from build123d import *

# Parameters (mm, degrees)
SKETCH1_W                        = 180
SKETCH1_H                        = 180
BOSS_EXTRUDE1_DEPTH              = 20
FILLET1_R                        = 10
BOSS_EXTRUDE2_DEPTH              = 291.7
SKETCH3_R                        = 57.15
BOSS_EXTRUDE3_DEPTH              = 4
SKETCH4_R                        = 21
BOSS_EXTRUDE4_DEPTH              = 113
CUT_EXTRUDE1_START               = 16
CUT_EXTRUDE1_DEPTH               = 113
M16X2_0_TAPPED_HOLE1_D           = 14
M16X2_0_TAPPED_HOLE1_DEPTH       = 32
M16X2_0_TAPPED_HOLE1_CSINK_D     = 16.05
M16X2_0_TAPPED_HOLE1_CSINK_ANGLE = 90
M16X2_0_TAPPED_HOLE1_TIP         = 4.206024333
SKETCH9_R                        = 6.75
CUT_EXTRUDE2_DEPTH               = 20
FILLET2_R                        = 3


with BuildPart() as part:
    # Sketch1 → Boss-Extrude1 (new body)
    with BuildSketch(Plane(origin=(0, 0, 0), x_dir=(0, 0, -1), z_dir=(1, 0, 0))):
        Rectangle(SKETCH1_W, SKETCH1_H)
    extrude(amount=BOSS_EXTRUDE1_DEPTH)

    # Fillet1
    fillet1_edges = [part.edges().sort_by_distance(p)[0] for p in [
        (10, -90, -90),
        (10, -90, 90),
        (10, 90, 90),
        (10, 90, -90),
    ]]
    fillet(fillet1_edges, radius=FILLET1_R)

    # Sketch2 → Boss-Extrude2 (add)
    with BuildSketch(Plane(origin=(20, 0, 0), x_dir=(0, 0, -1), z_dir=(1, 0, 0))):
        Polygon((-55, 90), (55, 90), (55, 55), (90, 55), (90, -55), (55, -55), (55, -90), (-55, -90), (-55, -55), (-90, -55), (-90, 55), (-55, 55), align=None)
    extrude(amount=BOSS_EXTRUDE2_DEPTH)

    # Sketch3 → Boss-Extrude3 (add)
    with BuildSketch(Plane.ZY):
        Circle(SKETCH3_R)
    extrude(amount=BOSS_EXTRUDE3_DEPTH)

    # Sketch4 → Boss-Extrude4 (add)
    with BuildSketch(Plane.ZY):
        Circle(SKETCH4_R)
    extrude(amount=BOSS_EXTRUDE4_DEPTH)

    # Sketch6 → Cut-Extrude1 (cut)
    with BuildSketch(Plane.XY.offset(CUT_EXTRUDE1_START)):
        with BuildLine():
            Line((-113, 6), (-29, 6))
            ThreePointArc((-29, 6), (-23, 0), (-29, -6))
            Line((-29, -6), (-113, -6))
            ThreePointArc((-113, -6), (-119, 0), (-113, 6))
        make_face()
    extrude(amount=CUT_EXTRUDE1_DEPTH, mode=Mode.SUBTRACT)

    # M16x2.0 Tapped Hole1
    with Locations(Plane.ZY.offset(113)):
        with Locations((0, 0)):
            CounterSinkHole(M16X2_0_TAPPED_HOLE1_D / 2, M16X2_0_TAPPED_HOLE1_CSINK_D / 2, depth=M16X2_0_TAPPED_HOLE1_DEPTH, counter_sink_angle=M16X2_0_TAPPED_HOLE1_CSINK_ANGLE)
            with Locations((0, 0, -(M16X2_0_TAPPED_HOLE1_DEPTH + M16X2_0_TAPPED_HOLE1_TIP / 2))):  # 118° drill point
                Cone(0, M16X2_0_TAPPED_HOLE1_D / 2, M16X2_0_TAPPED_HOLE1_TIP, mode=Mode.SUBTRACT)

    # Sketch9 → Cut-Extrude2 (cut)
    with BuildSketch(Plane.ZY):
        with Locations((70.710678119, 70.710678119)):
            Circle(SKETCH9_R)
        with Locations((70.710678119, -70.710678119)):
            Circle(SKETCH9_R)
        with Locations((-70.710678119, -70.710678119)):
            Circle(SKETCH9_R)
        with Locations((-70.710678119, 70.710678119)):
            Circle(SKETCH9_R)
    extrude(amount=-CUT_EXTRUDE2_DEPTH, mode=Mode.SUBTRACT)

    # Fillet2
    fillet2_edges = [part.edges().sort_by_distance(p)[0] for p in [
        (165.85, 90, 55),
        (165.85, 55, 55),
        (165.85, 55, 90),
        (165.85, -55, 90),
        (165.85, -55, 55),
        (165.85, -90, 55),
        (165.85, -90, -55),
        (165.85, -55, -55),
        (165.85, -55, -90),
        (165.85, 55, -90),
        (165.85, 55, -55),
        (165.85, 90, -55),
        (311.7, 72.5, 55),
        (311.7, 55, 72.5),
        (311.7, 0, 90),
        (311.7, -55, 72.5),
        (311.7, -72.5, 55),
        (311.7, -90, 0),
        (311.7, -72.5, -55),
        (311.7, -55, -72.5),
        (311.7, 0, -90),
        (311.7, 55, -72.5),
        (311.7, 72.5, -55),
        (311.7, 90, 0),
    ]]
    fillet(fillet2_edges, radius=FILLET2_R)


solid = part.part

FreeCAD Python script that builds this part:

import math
import FreeCAD as App
import Part
import Sketcher

V = App.Vector


def edges_at(feature, points):
    """Names of the edges that pass closest to the given points."""
    edges = feature.Shape.Edges
    near = lambda p: min(range(len(edges)), key=lambda i: edges[i].distToShape(Part.Vertex(*p))[0])
    return sorted({f"Edge{near(p) + 1}" for p in points})


def add_polygon(sketch, points):
    """Adds a closed chain of lines whose ends are joined by coincident constraints."""
    first, n = sketch.GeometryCount, len(points)
    for a, b in zip(points, points[1:] + points[:1]):
        sketch.addGeometry(Part.LineSegment(App.Vector(*a, 0), App.Vector(*b, 0)), False)
    for i in range(n):
        sketch.addConstraint(Sketcher.Constraint("Coincident", first + i, 2, first + (i + 1) % n, 1))

doc = App.newDocument("Part")
params = doc.addObject("Spreadsheet::Sheet", "Params")
for row, (alias, value) in enumerate([
    ("sketch1_width", "180 mm"),
    ("pad1_length", "20 mm"),
    ("fillet_radius", "10 mm"),
    ("sketch2_width", "35 mm"),
    ("sketch2_width2", "110 mm"),
    ("pad2_length", "291.7 mm"),
    ("sketch3_diameter", "114.3 mm"),
    ("pad3_length", "4 mm"),
    ("sketch4_diameter", "42 mm"),
    ("pad4_length", "113 mm"),
    ("sketch5_radius", "6 mm"),
    ("sketch5_width", "84 mm"),
    ("pocket1_length", "113 mm"),
    ("sketch6_diameter", "14 mm"),
    ("hole_diameter", "14 mm"),
    ("hole_depth", "32 mm"),
    ("hole_csink_diameter", "16.05 mm"),
    ("sketch7_diameter", "13.5 mm"),
    ("pocket2_length", "20 mm"),
    ("fillet2_radius", "3 mm"),
], start=1):
    params.set(f"A{row}", alias)
    params.set(f"B{row}", "=" + value)
    params.setAlias(f"B{row}", alias)

body = doc.addObject("PartDesign::Body", "Body")

# Sketch on YZ plane
sketch1 = doc.addObject("Sketcher::SketchObject", "Sketch")
body.addObject(sketch1)
sketch1.AttachmentSupport = (doc.YZ_Plane, [""])
sketch1.MapMode = "FlatFace"
add_polygon(sketch1, [(90, 90), (-90, 90), (-90, -90), (90, -90)])  # lines 0-3
sketch1.addConstraint([
    Sketcher.Constraint("Horizontal", 0),
    Sketcher.Constraint("Vertical", 1),
    Sketcher.Constraint("Horizontal", 2),
    Sketcher.Constraint("Vertical", 3),
    Sketcher.Constraint("Symmetric", 0, 2, 2, 2, -1, 1),
    Sketcher.Constraint("Equal", 2, 1),
    Sketcher.Constraint("DistanceX", 0, 2, 0, 1, 180.0),
])
sketch1.setExpression("Constraints[10]", "Params.sketch1_width")
pad1 = doc.addObject("PartDesign::Pad", "Pad")
body.addObject(pad1)
pad1.Profile = sketch1
pad1.setExpression("Length", "Params.pad1_length")
doc.recompute()

fillet = doc.addObject("PartDesign::Fillet", "Fillet")
body.addObject(fillet)
fillet.Base = (pad1, edges_at(pad1, [
    (10, -90, -90),
    (10, -90, 90),
    (10, 90, 90),
    (10, 90, -90),
]))
fillet.setExpression("Radius", "Params.fillet_radius")

# Sketch on YZ plane
sketch2 = doc.addObject("Sketcher::SketchObject", "Sketch001")
body.addObject(sketch2)
sketch2.AttachmentSupport = (doc.YZ_Plane, [""])
sketch2.MapMode = "FlatFace"
sketch2.AttachmentOffset = App.Placement(V(0, 0, 20), App.Rotation())
add_polygon(sketch2, [(90, -55), (90, 55), (55, 55), (55, 90), (-55, 90), (-55, 55), (-90, 55), (-90, -55), (-55, -55), (-55, -90), (55, -90), (55, -55)])  # lines 0-11
sketch2.addConstraint([
    Sketcher.Constraint("Vertical", 0),
    Sketcher.Constraint("Horizontal", 1),
    Sketcher.Constraint("Vertical", 2),
    Sketcher.Constraint("Horizontal", 3),
    Sketcher.Constraint("Vertical", 4),
    Sketcher.Constraint("Horizontal", 5),
    Sketcher.Constraint("Vertical", 6),
    Sketcher.Constraint("Horizontal", 7),
    Sketcher.Constraint("Vertical", 8),
    Sketcher.Constraint("Horizontal", 9),
    Sketcher.Constraint("Vertical", 10),
    Sketcher.Constraint("Horizontal", 11),
    Sketcher.Constraint("Symmetric", 0, 2, 6, 2, -1, 1),
    Sketcher.Constraint("Symmetric", 2, 2, 8, 2, -1, 1),
    Sketcher.Constraint("Symmetric", 4, 2, 10, 2, -1, 1),
    Sketcher.Constraint("Symmetric", 1, 2, 4, 2, -2),
    Sketcher.Constraint("Equal", 9, 0),
    Sketcher.Constraint("Equal", 11, 2),
    Sketcher.Constraint("DistanceX", 1, 2, 1, 1, 35.0),
    Sketcher.Constraint("DistanceX", 3, 2, 3, 1, 110.0),
])
sketch2.setExpression("Constraints[30]", "Params.sketch2_width")
sketch2.setExpression("Constraints[31]", "Params.sketch2_width2")
pad2 = doc.addObject("PartDesign::Pad", "Pad001")
body.addObject(pad2)
pad2.Profile = sketch2
pad2.setExpression("Length", "Params.pad2_length")

# Sketch on YZ plane
sketch3 = doc.addObject("Sketcher::SketchObject", "Sketch002")
body.addObject(sketch3)
sketch3.AttachmentSupport = (doc.YZ_Plane, [""])
sketch3.MapMode = "FlatFace"
sketch3.addGeometry(Part.Circle(V(0, 0, 0), V(0, 0, 1), 57.15), False)
sketch3.addConstraint([
    Sketcher.Constraint("Coincident", 0, 3, -1, 1),
    Sketcher.Constraint("Diameter", 0, 114.3),
])
sketch3.setExpression("Constraints[1]", "Params.sketch3_diameter")
pad3 = doc.addObject("PartDesign::Pad", "Pad002")
body.addObject(pad3)
pad3.Profile = sketch3
pad3.setExpression("Length", "Params.pad3_length")
pad3.Reversed = True

# Sketch on YZ plane
sketch4 = doc.addObject("Sketcher::SketchObject", "Sketch003")
body.addObject(sketch4)
sketch4.AttachmentSupport = (doc.YZ_Plane, [""])
sketch4.MapMode = "FlatFace"
sketch4.addGeometry(Part.Circle(V(0, 0, 0), V(0, 0, 1), 21), False)
sketch4.addConstraint([
    Sketcher.Constraint("Coincident", 0, 3, -1, 1),
    Sketcher.Constraint("Diameter", 0, 42.0),
])
sketch4.setExpression("Constraints[1]", "Params.sketch4_diameter")
pad4 = doc.addObject("PartDesign::Pad", "Pad003")
body.addObject(pad4)
pad4.Profile = sketch4
pad4.setExpression("Length", "Params.pad4_length")
pad4.Reversed = True

# Sketch on XY plane
sketch5 = doc.addObject("Sketcher::SketchObject", "Sketch004")
body.addObject(sketch5)
sketch5.AttachmentSupport = (doc.XY_Plane, [""])
sketch5.MapMode = "FlatFace"
sketch5.AttachmentOffset = App.Placement(V(0, 0, 16), App.Rotation())
sketch5.addGeometry([
    Part.LineSegment(V(-29, 6, 0), V(-113, 6, 0)),
    Part.ArcOfCircle(Part.Circle(V(-113, 0, 0), V(0, 0, 1), 6), math.radians(90), math.radians(270)),
    Part.LineSegment(V(-113, -6, 0), V(-29, -6, 0)),
    Part.ArcOfCircle(Part.Circle(V(-29, 0, 0), V(0, 0, 1), 6), math.radians(-90), math.radians(90)),
], False)
sketch5.addConstraint([
    Sketcher.Constraint("Tangent", 0, 2, 1, 1),
    Sketcher.Constraint("Tangent", 1, 2, 2, 1),
    Sketcher.Constraint("Tangent", 2, 2, 3, 1),
    Sketcher.Constraint("Tangent", 3, 2, 0, 1),
    Sketcher.Constraint("Horizontal", 0),
    Sketcher.Constraint("Horizontal", 2),
    Sketcher.Constraint("PointOnObject", 1, 3, -1),
    Sketcher.Constraint("Radius", 1, 6.0),
    Sketcher.Constraint("DistanceX", 0, 2, 0, 1, 84.0),
    Sketcher.Constraint("DistanceX", 1, 3, -1, 1, 113.0),
])
sketch5.setExpression("Constraints[7]", "Params.sketch5_radius")
sketch5.setExpression("Constraints[8]", "Params.sketch5_width")
pocket1 = doc.addObject("PartDesign::Pocket", "Pocket")
body.addObject(pocket1)
pocket1.Profile = sketch5
pocket1.setExpression("Length", "Params.pocket1_length")
pocket1.Reversed = True

# Sketch on YZ plane
sketch6 = doc.addObject("Sketcher::SketchObject", "Sketch005")
body.addObject(sketch6)
sketch6.AttachmentSupport = (doc.YZ_Plane, [""])
sketch6.MapMode = "FlatFace"
sketch6.AttachmentOffset = App.Placement(V(0, 0, -113), App.Rotation())
sketch6.addGeometry(Part.Circle(V(0, 0, 0), V(0, 0, 1), 7), False)
sketch6.addConstraint([
    Sketcher.Constraint("Coincident", 0, 3, -1, 1),
    Sketcher.Constraint("Diameter", 0, 14.0),
])
sketch6.setExpression("Constraints[1]", "Params.sketch6_diameter")
doc.recompute()
hole = doc.addObject("PartDesign::Hole", "Hole")
body.addObject(hole)
hole.Profile = sketch6
hole.ThreadType = "None"
hole.setExpression("Diameter", "Params.hole_diameter")
hole.DepthType = "Dimension"
hole.setExpression("Depth", "Params.hole_depth")
hole.DrillPoint = "Angled"
hole.DrillPointAngle = 118
hole.HoleCutType = "Countersink"
hole.setExpression("HoleCutDiameter", "Params.hole_csink_diameter")
hole.HoleCutCountersinkAngle = 90
hole.Reversed = True

# Sketch on YZ plane
sketch7 = doc.addObject("Sketcher::SketchObject", "Sketch006")
body.addObject(sketch7)
sketch7.AttachmentSupport = (doc.YZ_Plane, [""])
sketch7.MapMode = "FlatFace"
sketch7.addGeometry([
    Part.Circle(V(70.710678, 70.710678, 0), V(0, 0, 1), 6.75),
    Part.Circle(V(-70.710678, 70.710678, 0), V(0, 0, 1), 6.75),
    Part.Circle(V(-70.710678, -70.710678, 0), V(0, 0, 1), 6.75),
    Part.Circle(V(70.710678, -70.710678, 0), V(0, 0, 1), 6.75),
], False)
sketch7.addConstraint([
    Sketcher.Constraint("Equal", 0, 1),
    Sketcher.Constraint("Equal", 1, 2),
    Sketcher.Constraint("Equal", 2, 3),
    Sketcher.Constraint("Symmetric", 0, 3, 2, 3, -1, 1),
    Sketcher.Constraint("Symmetric", 1, 3, 3, 3, -1, 1),
    Sketcher.Constraint("Symmetric", 0, 3, 1, 3, -2),
    Sketcher.Constraint("Diameter", 0, 13.5),
    Sketcher.Constraint("DistanceX", -1, 1, 0, 3, 70.710678),
    Sketcher.Constraint("DistanceY", -1, 1, 0, 3, 70.710678),
])
sketch7.setExpression("Constraints[6]", "Params.sketch7_diameter")
pocket2 = doc.addObject("PartDesign::Pocket", "Pocket001")
body.addObject(pocket2)
pocket2.Profile = sketch7
pocket2.setExpression("Length", "Params.pocket2_length")
pocket2.Reversed = True
doc.recompute()

fillet2 = doc.addObject("PartDesign::Fillet", "Fillet001")
body.addObject(fillet2)
fillet2.Base = (pocket2, edges_at(pocket2, [
    (165.85, 90, 55),
    (165.85, 55, 55),
    (165.85, 55, 90),
    (165.85, -55, 90),
    (165.85, -55, 55),
    (165.85, -90, 55),
    (165.85, -90, -55),
    (165.85, -55, -55),
    (165.85, -55, -90),
    (165.85, 55, -90),
    (165.85, 55, -55),
    (165.85, 90, -55),
    (311.7, 72.5, 55),
    (311.7, 55, 72.5),
    (311.7, 0, 90),
    (311.7, -55, 72.5),
    (311.7, -72.5, 55),
    (311.7, -90, 0),
    (311.7, -72.5, -55),
    (311.7, -55, -72.5),
    (311.7, 0, -90),
    (311.7, 55, -72.5),
    (311.7, 72.5, -55),
    (311.7, 90, 0),
]))
fillet2.setExpression("Radius", "Params.fillet2_radius")

doc.recompute()
